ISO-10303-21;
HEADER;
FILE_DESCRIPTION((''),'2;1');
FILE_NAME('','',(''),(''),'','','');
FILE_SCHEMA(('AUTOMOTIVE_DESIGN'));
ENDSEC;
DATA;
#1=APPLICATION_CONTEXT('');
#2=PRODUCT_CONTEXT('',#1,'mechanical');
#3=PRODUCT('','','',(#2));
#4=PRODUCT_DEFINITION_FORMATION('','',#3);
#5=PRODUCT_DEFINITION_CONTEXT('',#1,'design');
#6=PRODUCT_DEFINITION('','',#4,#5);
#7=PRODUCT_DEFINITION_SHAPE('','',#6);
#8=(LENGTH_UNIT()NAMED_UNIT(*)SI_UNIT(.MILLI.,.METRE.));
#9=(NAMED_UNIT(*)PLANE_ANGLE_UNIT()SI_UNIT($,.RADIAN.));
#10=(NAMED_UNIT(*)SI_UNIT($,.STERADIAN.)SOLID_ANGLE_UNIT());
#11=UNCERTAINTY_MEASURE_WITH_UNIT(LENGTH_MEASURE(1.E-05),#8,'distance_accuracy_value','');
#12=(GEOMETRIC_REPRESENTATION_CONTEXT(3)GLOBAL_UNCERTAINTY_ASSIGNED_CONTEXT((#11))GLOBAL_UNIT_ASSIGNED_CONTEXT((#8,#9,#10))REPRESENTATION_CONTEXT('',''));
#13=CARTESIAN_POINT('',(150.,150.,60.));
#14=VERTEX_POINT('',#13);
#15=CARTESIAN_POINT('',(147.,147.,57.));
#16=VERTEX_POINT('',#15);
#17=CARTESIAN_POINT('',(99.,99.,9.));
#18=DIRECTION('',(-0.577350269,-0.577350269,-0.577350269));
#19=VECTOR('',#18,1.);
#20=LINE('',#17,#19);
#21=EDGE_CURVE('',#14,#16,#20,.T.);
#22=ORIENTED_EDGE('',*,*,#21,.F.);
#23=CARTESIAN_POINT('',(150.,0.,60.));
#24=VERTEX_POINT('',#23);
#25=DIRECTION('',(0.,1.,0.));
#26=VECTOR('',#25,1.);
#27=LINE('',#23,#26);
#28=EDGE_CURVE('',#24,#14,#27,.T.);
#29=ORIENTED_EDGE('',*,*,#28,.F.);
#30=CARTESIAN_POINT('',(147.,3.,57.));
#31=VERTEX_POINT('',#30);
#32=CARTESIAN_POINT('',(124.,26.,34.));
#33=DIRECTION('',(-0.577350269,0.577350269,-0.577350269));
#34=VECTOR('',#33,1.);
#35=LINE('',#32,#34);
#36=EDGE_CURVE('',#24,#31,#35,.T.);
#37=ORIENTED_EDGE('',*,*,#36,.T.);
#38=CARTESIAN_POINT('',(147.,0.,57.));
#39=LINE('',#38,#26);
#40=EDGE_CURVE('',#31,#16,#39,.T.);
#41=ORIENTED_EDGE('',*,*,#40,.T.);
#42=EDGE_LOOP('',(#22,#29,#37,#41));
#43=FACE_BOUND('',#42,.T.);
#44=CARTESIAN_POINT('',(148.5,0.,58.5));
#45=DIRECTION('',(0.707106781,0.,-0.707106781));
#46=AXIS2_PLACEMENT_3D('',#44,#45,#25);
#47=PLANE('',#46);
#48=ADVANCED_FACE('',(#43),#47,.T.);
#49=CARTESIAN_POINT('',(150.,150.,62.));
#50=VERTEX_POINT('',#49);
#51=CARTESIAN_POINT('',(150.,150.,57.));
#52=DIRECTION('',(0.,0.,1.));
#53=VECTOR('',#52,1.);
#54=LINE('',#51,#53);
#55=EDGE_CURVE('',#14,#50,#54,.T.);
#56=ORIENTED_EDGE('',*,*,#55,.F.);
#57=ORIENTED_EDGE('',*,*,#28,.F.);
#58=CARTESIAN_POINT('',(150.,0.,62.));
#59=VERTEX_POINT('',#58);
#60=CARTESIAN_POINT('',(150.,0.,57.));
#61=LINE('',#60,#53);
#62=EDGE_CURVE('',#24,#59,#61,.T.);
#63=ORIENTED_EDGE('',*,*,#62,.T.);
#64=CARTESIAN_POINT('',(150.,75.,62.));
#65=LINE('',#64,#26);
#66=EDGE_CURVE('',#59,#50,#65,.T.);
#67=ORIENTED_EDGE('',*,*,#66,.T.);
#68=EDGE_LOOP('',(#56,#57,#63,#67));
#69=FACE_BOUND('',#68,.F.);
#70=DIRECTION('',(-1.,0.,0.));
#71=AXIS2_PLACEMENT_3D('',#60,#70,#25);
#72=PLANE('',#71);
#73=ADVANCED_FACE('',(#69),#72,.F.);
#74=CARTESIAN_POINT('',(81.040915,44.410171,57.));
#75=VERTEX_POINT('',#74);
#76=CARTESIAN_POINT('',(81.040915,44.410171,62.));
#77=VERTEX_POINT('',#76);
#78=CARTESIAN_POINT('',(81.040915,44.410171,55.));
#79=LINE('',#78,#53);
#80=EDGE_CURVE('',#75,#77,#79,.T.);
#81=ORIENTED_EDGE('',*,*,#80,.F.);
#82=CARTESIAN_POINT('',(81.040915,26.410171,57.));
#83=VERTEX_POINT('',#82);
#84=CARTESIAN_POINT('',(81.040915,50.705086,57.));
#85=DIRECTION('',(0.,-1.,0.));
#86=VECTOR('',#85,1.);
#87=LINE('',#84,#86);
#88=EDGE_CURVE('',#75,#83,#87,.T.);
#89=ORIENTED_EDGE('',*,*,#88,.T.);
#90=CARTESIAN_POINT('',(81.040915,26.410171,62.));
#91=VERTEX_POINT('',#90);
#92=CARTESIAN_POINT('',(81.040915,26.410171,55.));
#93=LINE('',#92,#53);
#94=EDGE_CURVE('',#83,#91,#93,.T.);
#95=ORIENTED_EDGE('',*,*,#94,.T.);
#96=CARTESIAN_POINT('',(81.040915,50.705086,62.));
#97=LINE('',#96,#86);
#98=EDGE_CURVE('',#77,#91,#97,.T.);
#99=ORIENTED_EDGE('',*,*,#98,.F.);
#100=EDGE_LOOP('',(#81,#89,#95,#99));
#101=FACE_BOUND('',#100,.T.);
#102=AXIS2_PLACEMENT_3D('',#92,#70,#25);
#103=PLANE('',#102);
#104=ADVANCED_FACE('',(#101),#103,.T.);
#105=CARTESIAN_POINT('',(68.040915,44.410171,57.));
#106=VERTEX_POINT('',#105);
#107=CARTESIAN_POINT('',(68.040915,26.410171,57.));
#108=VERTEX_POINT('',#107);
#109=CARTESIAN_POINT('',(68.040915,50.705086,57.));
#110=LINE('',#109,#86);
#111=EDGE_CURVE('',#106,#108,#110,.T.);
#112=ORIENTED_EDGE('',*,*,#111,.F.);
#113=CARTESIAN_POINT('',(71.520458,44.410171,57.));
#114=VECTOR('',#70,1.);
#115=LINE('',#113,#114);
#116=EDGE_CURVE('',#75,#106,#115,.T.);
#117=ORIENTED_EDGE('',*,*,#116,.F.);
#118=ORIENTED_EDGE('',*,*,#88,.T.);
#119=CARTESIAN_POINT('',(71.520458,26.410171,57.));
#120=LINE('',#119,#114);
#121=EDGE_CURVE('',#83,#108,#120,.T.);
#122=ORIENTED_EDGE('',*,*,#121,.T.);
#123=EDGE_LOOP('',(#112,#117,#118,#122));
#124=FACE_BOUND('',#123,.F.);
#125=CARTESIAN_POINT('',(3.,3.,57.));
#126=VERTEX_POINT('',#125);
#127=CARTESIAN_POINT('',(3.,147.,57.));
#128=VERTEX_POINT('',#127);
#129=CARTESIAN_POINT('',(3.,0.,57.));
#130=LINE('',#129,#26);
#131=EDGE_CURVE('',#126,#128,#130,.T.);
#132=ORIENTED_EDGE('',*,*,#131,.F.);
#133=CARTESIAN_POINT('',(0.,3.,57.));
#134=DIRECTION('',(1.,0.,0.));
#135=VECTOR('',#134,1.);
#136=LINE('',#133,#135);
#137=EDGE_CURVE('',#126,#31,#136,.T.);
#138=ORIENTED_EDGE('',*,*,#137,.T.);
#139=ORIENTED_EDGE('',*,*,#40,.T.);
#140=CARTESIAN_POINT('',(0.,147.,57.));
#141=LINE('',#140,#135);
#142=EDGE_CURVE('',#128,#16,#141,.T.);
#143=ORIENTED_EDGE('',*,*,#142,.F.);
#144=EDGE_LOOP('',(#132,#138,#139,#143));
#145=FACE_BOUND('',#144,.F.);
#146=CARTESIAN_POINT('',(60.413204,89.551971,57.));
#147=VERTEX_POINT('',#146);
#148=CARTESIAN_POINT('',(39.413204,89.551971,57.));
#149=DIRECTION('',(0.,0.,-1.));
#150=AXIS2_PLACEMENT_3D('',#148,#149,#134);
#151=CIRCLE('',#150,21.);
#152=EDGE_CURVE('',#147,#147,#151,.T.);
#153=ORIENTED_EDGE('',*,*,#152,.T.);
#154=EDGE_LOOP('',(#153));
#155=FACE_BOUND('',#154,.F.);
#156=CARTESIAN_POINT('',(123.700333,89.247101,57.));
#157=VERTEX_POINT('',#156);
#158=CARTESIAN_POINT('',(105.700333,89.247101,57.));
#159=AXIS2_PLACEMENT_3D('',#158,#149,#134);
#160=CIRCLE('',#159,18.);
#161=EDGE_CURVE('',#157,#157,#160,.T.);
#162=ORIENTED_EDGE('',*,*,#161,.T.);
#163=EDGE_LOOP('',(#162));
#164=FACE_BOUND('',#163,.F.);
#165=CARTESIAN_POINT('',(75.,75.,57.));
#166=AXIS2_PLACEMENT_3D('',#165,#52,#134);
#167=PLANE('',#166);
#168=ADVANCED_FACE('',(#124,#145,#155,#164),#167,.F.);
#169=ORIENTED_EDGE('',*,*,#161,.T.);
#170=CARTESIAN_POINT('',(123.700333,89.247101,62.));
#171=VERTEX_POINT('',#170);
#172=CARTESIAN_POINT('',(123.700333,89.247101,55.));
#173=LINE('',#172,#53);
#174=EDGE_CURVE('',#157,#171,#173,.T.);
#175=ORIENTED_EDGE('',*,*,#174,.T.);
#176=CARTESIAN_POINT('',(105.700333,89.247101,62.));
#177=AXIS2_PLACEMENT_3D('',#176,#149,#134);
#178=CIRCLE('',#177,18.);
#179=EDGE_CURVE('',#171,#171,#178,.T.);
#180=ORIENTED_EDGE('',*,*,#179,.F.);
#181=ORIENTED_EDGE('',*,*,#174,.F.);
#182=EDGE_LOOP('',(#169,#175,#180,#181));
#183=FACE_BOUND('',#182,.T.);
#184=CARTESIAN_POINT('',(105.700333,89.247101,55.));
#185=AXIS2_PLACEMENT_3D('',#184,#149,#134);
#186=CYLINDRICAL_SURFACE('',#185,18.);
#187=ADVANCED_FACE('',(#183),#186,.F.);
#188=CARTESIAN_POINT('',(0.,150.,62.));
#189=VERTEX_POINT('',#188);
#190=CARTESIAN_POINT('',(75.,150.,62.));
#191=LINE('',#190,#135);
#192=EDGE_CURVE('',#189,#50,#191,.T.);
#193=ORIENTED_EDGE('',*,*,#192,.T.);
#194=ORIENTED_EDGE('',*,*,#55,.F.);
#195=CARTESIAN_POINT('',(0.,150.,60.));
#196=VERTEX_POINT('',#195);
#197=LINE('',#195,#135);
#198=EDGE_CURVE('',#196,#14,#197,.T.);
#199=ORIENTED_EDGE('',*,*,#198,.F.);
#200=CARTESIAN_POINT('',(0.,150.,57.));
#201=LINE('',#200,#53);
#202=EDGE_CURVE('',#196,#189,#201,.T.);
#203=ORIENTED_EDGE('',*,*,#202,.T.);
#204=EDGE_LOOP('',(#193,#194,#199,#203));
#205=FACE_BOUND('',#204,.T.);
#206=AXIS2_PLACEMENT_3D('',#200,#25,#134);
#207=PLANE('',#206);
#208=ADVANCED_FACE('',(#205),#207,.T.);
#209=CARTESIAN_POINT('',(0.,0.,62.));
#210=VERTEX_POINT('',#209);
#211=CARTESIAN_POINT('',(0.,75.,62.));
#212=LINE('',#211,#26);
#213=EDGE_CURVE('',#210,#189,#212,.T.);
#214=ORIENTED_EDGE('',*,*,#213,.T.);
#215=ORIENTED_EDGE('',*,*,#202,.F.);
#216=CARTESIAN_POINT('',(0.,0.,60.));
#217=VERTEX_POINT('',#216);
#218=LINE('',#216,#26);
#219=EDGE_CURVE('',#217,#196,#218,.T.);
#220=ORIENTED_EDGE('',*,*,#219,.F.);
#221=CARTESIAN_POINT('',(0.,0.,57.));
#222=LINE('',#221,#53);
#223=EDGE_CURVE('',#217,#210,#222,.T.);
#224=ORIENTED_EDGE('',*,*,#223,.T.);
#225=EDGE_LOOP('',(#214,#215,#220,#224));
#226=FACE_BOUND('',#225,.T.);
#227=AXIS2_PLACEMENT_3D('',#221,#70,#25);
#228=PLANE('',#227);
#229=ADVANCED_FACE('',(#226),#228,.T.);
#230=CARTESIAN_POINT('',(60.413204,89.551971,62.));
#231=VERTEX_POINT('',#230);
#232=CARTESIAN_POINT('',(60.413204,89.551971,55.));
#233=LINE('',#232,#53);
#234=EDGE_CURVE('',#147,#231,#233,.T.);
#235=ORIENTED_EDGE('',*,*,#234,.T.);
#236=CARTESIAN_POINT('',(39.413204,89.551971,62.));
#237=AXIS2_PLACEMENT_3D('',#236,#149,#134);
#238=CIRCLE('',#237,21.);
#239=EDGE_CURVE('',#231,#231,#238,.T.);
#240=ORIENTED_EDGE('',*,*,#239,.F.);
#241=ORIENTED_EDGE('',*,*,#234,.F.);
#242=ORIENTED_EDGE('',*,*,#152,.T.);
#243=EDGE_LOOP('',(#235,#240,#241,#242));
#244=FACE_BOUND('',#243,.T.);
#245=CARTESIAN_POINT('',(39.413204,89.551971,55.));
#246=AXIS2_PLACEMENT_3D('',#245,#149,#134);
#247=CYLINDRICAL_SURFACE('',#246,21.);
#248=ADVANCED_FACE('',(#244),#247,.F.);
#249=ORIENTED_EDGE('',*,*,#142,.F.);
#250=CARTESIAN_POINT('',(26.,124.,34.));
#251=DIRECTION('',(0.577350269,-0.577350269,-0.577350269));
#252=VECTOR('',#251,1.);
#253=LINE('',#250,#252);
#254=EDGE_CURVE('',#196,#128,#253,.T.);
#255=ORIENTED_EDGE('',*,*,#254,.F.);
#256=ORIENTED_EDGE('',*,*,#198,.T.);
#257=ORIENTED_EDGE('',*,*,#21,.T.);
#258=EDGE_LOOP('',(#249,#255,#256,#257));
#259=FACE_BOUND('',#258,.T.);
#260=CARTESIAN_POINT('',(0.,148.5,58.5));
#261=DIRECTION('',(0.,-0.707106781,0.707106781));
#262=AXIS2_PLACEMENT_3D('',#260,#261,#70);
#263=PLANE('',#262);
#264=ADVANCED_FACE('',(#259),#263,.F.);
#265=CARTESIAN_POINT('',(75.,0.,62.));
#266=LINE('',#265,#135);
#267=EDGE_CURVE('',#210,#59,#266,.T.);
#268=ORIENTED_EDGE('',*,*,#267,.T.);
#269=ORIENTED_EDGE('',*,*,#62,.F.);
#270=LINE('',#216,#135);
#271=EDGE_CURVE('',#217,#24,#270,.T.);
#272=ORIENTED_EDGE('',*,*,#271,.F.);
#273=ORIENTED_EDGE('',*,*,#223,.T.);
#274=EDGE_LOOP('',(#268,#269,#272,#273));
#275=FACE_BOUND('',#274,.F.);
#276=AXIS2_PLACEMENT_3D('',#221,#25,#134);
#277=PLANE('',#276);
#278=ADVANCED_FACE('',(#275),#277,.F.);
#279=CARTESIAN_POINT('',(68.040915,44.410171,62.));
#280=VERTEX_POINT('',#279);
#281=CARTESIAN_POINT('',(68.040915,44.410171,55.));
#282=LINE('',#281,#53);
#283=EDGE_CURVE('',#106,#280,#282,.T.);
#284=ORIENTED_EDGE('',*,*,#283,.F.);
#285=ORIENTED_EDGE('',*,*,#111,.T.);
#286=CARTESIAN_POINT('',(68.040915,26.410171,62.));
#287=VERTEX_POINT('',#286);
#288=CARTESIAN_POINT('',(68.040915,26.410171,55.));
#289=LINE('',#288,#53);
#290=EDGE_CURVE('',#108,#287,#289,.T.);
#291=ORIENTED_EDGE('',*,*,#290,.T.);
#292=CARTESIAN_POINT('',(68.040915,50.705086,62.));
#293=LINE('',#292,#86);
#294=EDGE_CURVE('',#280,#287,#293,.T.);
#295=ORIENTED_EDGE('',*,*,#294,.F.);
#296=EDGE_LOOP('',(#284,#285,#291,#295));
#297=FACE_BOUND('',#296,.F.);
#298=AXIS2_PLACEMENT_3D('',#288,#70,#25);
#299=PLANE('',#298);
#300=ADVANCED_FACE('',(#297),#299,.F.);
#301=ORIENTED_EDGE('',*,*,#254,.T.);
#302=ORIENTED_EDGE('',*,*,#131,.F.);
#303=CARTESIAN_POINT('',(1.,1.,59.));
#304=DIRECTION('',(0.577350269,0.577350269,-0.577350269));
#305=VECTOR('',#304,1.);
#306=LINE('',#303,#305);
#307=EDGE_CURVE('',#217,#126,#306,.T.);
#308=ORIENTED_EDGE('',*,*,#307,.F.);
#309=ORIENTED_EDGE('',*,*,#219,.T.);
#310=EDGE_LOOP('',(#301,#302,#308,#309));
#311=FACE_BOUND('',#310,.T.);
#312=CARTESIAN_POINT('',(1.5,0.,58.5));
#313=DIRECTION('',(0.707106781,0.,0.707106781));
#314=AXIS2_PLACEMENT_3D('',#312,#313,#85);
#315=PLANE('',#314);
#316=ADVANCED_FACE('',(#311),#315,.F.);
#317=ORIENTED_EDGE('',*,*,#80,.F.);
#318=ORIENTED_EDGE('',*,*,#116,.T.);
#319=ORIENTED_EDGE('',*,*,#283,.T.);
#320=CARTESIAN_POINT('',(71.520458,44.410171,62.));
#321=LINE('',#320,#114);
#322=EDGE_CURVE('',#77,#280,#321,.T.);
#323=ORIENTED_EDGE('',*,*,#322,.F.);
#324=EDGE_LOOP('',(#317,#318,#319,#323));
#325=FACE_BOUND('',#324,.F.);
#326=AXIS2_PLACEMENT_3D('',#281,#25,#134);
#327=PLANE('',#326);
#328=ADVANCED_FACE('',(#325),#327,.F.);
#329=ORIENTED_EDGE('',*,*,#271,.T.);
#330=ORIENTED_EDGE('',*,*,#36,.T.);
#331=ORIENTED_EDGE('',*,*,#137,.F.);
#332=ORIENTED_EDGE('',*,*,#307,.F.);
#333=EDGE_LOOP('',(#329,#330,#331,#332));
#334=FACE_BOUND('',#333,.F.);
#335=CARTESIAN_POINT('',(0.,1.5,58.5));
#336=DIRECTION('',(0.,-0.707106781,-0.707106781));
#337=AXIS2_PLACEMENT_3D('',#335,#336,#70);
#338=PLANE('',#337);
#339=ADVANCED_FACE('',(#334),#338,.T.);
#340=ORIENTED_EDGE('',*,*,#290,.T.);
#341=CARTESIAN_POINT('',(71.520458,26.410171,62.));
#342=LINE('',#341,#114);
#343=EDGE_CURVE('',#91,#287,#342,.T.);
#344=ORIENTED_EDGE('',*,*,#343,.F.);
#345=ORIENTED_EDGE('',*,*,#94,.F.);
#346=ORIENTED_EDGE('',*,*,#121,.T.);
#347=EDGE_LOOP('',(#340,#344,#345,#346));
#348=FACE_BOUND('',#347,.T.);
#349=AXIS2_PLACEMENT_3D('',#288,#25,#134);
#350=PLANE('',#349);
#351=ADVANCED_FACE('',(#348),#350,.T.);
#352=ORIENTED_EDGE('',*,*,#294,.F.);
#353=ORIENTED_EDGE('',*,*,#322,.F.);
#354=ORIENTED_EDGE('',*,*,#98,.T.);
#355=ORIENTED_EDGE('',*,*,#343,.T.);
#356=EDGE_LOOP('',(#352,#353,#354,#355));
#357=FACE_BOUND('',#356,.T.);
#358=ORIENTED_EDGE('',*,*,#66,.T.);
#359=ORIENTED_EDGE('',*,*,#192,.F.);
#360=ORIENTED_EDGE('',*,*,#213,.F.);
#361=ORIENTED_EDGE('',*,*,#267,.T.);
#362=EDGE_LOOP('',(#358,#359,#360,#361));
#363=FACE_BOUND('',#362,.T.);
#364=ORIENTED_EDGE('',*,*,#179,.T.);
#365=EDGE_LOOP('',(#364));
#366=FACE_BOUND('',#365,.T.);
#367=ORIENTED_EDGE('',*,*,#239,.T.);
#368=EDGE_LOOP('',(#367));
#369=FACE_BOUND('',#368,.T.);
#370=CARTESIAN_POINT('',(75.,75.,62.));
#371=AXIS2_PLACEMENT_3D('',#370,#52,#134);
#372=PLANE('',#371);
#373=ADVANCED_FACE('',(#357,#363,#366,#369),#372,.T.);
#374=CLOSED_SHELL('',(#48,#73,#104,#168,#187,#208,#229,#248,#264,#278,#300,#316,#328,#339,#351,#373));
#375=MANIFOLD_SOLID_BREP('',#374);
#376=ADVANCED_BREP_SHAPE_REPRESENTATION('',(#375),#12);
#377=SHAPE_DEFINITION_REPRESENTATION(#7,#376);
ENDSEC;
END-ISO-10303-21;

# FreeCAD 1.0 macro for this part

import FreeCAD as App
import Part
import Sketcher
from FreeCAD import Vector


def edges_at(feature, points):
    """Names of the edges that pass closest to the given points."""
    edges = feature.Shape.Edges
    near = lambda p: min(range(len(edges)), key=lambda i: edges[i].distToShape(Part.Vertex(*p))[0])
    return sorted({f"Edge{near(p) + 1}" for p in points})

doc = App.newDocument("Part")
body = doc.addObject("PartDesign::Body", "Body")
body.AllowCompound = True

sketch1 = body.newObject("Sketcher::SketchObject", "Sketch")
sketch1.AttachmentSupport = (doc.getObject("XY_Plane"), [""])
sketch1.MapMode = "FlatFace"
sketch1.AttachmentOffset = App.Placement(Vector(0, 0, 5), App.Rotation())
sketch1.addGeometry(Part.Circle(Vector(39, 90, 0), Vector(0, 0, 1), 21), False)
sketch1.addGeometry(Part.Circle(Vector(106, 89, 0), Vector(0, 0, 1), 18), False)
sketch1.addGeometry(Part.LineSegment(Vector(68, 44, 0), Vector(68, 26, 0)), False)
sketch1.addGeometry(Part.LineSegment(Vector(68, 26, 0), Vector(81, 26, 0)), False)
sketch1.addGeometry(Part.LineSegment(Vector(81, 26, 0), Vector(81, 44, 0)), False)
sketch1.addGeometry(Part.LineSegment(Vector(81, 44, 0), Vector(68, 44, 0)), False)
sketch1.addConstraint(Sketcher.Constraint("Coincident", 2, 2, 3, 1))
sketch1.addConstraint(Sketcher.Constraint("Coincident", 3, 2, 4, 1))
sketch1.addConstraint(Sketcher.Constraint("Coincident", 4, 2, 5, 1))
sketch1.addConstraint(Sketcher.Constraint("Coincident", 5, 2, 2, 1))
sketch1.addConstraint(Sketcher.Constraint("Vertical", 2))
sketch1.addConstraint(Sketcher.Constraint("Horizontal", 3))
sketch1.addConstraint(Sketcher.Constraint("Vertical", 4))
sketch1.addConstraint(Sketcher.Constraint("Horizontal", 5))
sketch1.addConstraint(Sketcher.Constraint("Diameter", 0, 42.0))
sketch1.addConstraint(Sketcher.Constraint("Diameter", 1, 36.0))
sketch1.addConstraint(Sketcher.Constraint("DistanceX", 3, 1, 3, 2, 13.0))
sketch1.addConstraint(Sketcher.Constraint("DistanceY", 2, 2, 2, 1, 18.0))
sketch1.addConstraint(Sketcher.Constraint("DistanceY", -1, 1, 1, 3, 89.247101))
sketch1.addConstraint(Sketcher.Constraint("DistanceY", 2, 2, 0, 3, 63.1418))
sketch1.addConstraint(Sketcher.Constraint("DistanceY", -1, 1, 0, 3, 89.551971))
sketch1.addConstraint(Sketcher.Constraint("DistanceX", 0, 3, 1, 3, 66.287129))
sketch1.addConstraint(Sketcher.Constraint("DistanceX", 0, 3, 2, 2, 28.627711))
sketch1.addConstraint(Sketcher.Constraint("DistanceX", -1, 1, 0, 3, 39.413204))
pad1 = body.newObject("PartDesign::Pad", "Pad")
pad1.Profile = sketch1
pad1.Length = 10
body2 = doc.addObject("PartDesign::Body", "Body001")
body2.AllowCompound = True
doc.recompute()

body.Placement = App.Placement(Vector(0, 0, -7), App.Rotation(Vector(0, 0, 1), 0))
boolean = body2.newObject("PartDesign::Boolean", "Boolean")
boolean.Type = "Fuse"
boolean.addObjects([body])
body3 = doc.addObject("PartDesign::Body", "Body002")

sketch2 = body3.newObject("Sketcher::SketchObject", "Sketch001")
sketch2.AttachmentSupport = (doc.getObject("XY_Plane002"), [""])
sketch2.MapMode = "FlatFace"
sketch2.addGeometry(Part.LineSegment(Vector(0, 150, 0), Vector(0, 0, 0)), False)
sketch2.addGeometry(Part.LineSegment(Vector(0, 0, 0), Vector(150, 0, 0)), False)
sketch2.addGeometry(Part.LineSegment(Vector(150, 0, 0), Vector(150, 150, 0)), False)
sketch2.addGeometry(Part.LineSegment(Vector(150, 150, 0), Vector(0, 150, 0)), False)
sketch2.addConstraint(Sketcher.Constraint("Coincident", 0, 2, 1, 1))
sketch2.addConstraint(Sketcher.Constraint("Coincident", 1, 2, 2, 1))
sketch2.addConstraint(Sketcher.Constraint("Coincident", 2, 2, 3, 1))
sketch2.addConstraint(Sketcher.Constraint("Coincident", 3, 2, 0, 1))
sketch2.addConstraint(Sketcher.Constraint("Vertical", 0))
sketch2.addConstraint(Sketcher.Constraint("Horizontal", 1))
sketch2.addConstraint(Sketcher.Constraint("Vertical", 2))
sketch2.addConstraint(Sketcher.Constraint("Horizontal", 3))
sketch2.addConstraint(Sketcher.Constraint("Coincident", 0, 2, -1, 1))
sketch2.addConstraint(Sketcher.Constraint("Equal", 3, 0))
sketch2.addConstraint(Sketcher.Constraint("DistanceX", 1, 1, 1, 2, 150.0))
pad2 = body3.newObject("PartDesign::Pad", "Pad001")
pad2.Profile = sketch2
pad2.Length = 5
doc.recompute()

boolean2 = body3.newObject("PartDesign::Boolean", "Boolean001")
boolean2.Type = "Cut"
boolean2.addObjects([body2])
body4 = doc.addObject("PartDesign::Body", "Body003")
doc.recompute()

body3.Placement = App.Placement(Vector(0, 0, 61), App.Rotation(Vector(0, 0, 1), 0))
boolean3 = body4.newObject("PartDesign::Boolean", "Boolean002")
boolean3.Type = "Fuse"
boolean3.addObjects([body3])
doc.recompute()

chamfer = body4.newObject("PartDesign::Chamfer", "Chamfer")
chamfer.Base = (boolean3, edges_at(boolean3, [
    (0, 75, 61),
    (75, 0, 61),
    (75, 150, 61),
    (150, 75, 61),
]))
chamfer.Size = 3
body5 = doc.addObject("PartDesign::Body", "Body004")
doc.recompute()

body4.Placement = App.Placement(Vector(0, 0, -4), App.Rotation(Vector(0, 0, 1), 0))
boolean4 = body5.newObject("PartDesign::Boolean", "Boolean003")
boolean4.Type = "Fuse"
boolean4.addObjects([body4])

doc.recompute()
